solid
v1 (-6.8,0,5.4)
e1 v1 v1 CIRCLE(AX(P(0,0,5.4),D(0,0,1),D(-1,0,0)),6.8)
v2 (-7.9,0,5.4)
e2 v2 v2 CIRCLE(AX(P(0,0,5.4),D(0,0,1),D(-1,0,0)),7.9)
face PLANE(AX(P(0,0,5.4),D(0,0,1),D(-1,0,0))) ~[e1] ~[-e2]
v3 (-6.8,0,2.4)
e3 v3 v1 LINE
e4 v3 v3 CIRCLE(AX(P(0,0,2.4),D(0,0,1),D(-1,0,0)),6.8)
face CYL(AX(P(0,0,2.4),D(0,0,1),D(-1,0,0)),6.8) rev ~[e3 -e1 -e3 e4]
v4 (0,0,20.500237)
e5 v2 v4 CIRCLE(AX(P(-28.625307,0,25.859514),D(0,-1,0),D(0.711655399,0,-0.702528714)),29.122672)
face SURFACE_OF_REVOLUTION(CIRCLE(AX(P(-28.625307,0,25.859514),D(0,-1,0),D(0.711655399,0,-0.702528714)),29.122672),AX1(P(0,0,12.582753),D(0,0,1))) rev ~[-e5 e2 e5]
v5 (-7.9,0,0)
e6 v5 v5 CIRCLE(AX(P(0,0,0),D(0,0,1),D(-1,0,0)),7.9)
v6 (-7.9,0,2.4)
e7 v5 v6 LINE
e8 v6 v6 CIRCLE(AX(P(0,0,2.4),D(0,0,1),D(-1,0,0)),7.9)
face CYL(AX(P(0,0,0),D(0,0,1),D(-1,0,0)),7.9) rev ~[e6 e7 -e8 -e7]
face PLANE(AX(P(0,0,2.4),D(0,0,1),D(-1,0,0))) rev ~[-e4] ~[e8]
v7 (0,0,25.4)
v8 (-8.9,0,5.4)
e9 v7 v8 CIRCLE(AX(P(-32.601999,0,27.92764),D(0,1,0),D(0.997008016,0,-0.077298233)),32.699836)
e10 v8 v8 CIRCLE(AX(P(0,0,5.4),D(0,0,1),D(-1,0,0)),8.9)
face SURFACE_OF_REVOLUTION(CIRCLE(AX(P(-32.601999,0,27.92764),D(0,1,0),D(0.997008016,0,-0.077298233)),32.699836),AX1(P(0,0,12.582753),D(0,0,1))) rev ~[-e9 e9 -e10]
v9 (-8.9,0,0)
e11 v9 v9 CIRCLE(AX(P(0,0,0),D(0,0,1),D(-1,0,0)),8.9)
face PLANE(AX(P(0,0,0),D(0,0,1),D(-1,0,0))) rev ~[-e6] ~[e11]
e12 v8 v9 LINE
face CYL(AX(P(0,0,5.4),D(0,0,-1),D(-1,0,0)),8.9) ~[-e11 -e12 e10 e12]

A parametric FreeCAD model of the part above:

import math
import FreeCAD as App
import Part
import Sketcher

V = App.Vector

doc = App.newDocument("Part")
body = doc.addObject("PartDesign::Body", "Body")

# Sketch on XZ plane
sketch1 = doc.addObject("Sketcher::SketchObject", "Sketch")
body.addObject(sketch1)
sketch1.AttachmentSupport = (doc.XZ_Plane, [""])
sketch1.MapMode = "FlatFace"
sketch1.addGeometry([
    Part.LineSegment(V(0, 8.9, 0), V(0, 7.9, 0)),  # 0
    Part.LineSegment(V(0, 7.9, 0), V(2.4, 7.9, 0)),  # 1
    Part.LineSegment(V(2.4, 7.9, 0), V(2.4, 6.8, 0)),  # 2
    Part.LineSegment(V(2.4, 6.8, 0), V(5.4, 6.8, 0)),  # 3
    Part.LineSegment(V(5.4, 6.8, 0), V(5.4, 7.9, 0)),  # 4
    Part.ArcOfCircle(Part.Circle(V(25.859514, 28.625307, 0), V(0, 0, 1), 29.122672), math.radians(-134.630237), math.radians(-100.604246)),  # 5
    Part.LineSegment(V(20.500237, 0, 0), V(25.4, 0, 0)),  # 6
    Part.ArcOfCircle(Part.Circle(V(27.92764, 32.601999, 0), V(0, 0, 1), 32.699836), math.radians(-133.544843), math.radians(-94.433285)),  # 7
    Part.LineSegment(V(5.4, 8.9, 0), V(0, 8.9, 0)),  # 8
], False)
sketch1.addConstraint([
    Sketcher.Constraint("Coincident", 0, 2, 1, 1),
    Sketcher.Constraint("Coincident", 1, 2, 2, 1),
    Sketcher.Constraint("Coincident", 2, 2, 3, 1),
    Sketcher.Constraint("Coincident", 3, 2, 4, 1),
    Sketcher.Constraint("Coincident", 4, 2, 5, 1),
    Sketcher.Constraint("Coincident", 5, 2, 6, 1),
    Sketcher.Constraint("Coincident", 6, 2, 7, 2),
    Sketcher.Constraint("Coincident", 7, 1, 8, 1),
    Sketcher.Constraint("Coincident", 8, 2, 0, 1),
    Sketcher.Constraint("Vertical", 0),
    Sketcher.Constraint("Horizontal", 1),
    Sketcher.Constraint("Vertical", 2),
    Sketcher.Constraint("Horizontal", 3),
    Sketcher.Constraint("Vertical", 4),
    Sketcher.Constraint("Horizontal", 6),
    Sketcher.Constraint("Horizontal", 8),
    Sketcher.Constraint("PointOnObject", 0, 2, -2),
    Sketcher.Constraint("PointOnObject", 5, 2, -1),
    Sketcher.Constraint("Horizontal", 1, 2, 4, 2),
    Sketcher.Constraint("Vertical", 4, 2, 7, 1),
    Sketcher.Constraint("DistanceX", 3, 1, 3, 2, 3.0),
    Sketcher.Constraint("DistanceY", 0, 2, 0, 1, 1.0),
    Sketcher.Constraint("DistanceX", 1, 1, 1, 2, 2.4),
    Sketcher.Constraint("DistanceY", 2, 2, 2, 1, 1.1),
    Sketcher.Constraint("DistanceX", 3, 2, 6, 2, 20.0),
    Sketcher.Constraint("DistanceY", -1, 1, 0, 2, 7.9),
    Sketcher.Constraint("DistanceY", -1, 1, 7, 3, 32.601999),
    Sketcher.Constraint("Radius", 5, 29.122672),
    Sketcher.Constraint("DistanceX", 6, 1, 6, 2, 4.899763),
])
revolution = doc.addObject("PartDesign::Revolution", "Revolution")
body.addObject(revolution)
revolution.Profile = sketch1
revolution.ReferenceAxis = (sketch1, ["H_Axis"])
revolution.Angle = 360
body2 = doc.addObject("PartDesign::Body", "Body001")
doc.recompute()

body.Placement = App.Placement(V(0, 0, 0), App.Rotation(V(0, -1, 0), 90))
boolean = doc.addObject("PartDesign::Boolean", "Boolean")
body2.addObject(boolean)
boolean.Type = "Fuse"
boolean.addObjects([body])

doc.recompute()
